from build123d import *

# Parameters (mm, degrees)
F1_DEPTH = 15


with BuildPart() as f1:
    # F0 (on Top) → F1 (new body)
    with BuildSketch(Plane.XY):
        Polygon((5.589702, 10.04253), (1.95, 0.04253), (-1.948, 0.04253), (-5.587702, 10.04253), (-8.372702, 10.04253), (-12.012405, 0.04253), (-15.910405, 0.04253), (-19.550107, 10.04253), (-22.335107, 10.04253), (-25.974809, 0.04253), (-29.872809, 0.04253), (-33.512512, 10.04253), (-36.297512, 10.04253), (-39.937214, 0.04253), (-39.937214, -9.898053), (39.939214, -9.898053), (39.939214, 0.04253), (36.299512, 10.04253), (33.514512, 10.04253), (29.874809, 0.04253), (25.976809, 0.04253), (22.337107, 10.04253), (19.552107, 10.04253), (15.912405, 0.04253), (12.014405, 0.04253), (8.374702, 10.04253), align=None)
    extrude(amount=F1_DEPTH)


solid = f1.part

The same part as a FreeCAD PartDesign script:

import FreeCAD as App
import Part
import Sketcher

V = App.Vector
Q = App.Units.Quantity


def add_polygon(sketch, points):
    """Adds a closed chain of lines whose ends are joined by coincident constraints."""
    first, n = sketch.GeometryCount, len(points)
    for a, b in zip(points, points[1:] + points[:1]):
        sketch.addGeometry(Part.LineSegment(App.Vector(*a, 0), App.Vector(*b, 0)), False)
    for i in range(n):
        sketch.addConstraint(Sketcher.Constraint("Coincident", first + i, 2, first + (i + 1) % n, 1))

doc = App.newDocument("Part")
body = doc.addObject("PartDesign::Body", "Body")

sketch1 = body.newObject("Sketcher::SketchObject", "Sketch")
sketch1.AttachmentSupport = (doc.getObject("XY_Plane"), [""])
sketch1.MapMode = "FlatFace"
add_polygon(sketch1, [(5.6, 10), (1.9, 0), (-1.9, 0), (-5.6, 10), (-8.4, 10), (-12, 0), (-15.9, 0), (-19.6, 10), (-22.3, 10), (-26, 0), (-29.9, 0), (-33.5, 10), (-36.3, 10), (-39.9, 0), (-39.9, -9.9), (39.9, -9.9), (39.9, 0), (36.3, 10), (33.5, 10), (29.9, 0), (26, 0), (22.3, 10), (19.6, 10), (15.9, 0), (12, 0), (8.4, 10)])
sketch1.addConstraint([
    Sketcher.Constraint("Horizontal", 1),
    Sketcher.Constraint("Horizontal", 3),
    Sketcher.Constraint("Horizontal", 5),
    Sketcher.Constraint("Horizontal", 7),
    Sketcher.Constraint("Horizontal", 9),
    Sketcher.Constraint("Horizontal", 11),
    Sketcher.Constraint("Vertical", 13),
    Sketcher.Constraint("Horizontal", 14),
    Sketcher.Constraint("Vertical", 15),
    Sketcher.Constraint("Horizontal", 17),
    Sketcher.Constraint("Horizontal", 19),
    Sketcher.Constraint("Horizontal", 21),
    Sketcher.Constraint("Horizontal", 23),
    Sketcher.Constraint("Horizontal", 25),
    Sketcher.Constraint("Parallel", 0, 4),
    Sketcher.Constraint("Parallel", 2, 6),
    Sketcher.Constraint("Parallel", 4, 8),
    Sketcher.Constraint("Parallel", 6, 10),
    Sketcher.Constraint("Parallel", 8, 12),
    Sketcher.Constraint("Parallel", 10, 16),
    Sketcher.Constraint("Parallel", 12, 18),
    Sketcher.Constraint("Parallel", 16, 20),
    Sketcher.Constraint("Parallel", 18, 22),
    Sketcher.Constraint("Parallel", 20, 24),
    Sketcher.Constraint("Horizontal", 1, 2, 4, 2),
    Sketcher.Constraint("Horizontal", 3, 2, 6, 2),
    Sketcher.Constraint("Horizontal", 5, 2, 8, 2),
    Sketcher.Constraint("Horizontal", 7, 2, 10, 2),
    Sketcher.Constraint("Horizontal", 9, 2, 12, 2),
    Sketcher.Constraint("Horizontal", 12, 2, 15, 2),
    Sketcher.Constraint("Horizontal", 11, 2, 16, 2),
    Sketcher.Constraint("Horizontal", 15, 2, 18, 2),
    Sketcher.Constraint("Horizontal", 17, 2, 20, 2),
    Sketcher.Constraint("Horizontal", 19, 2, 22, 2),
    Sketcher.Constraint("Horizontal", 21, 2, 24, 2),
    Sketcher.Constraint("Equal", 1, 5),
    Sketcher.Constraint("Equal", 3, 7),
    Sketcher.Constraint("Equal", 5, 9),
    Sketcher.Constraint("Equal", 7, 11),
    Sketcher.Constraint("Equal", 11, 17),
    Sketcher.Constraint("Equal", 9, 19),
    Sketcher.Constraint("Equal", 17, 21),
    Sketcher.Constraint("Equal", 19, 23),
    Sketcher.Constraint("Equal", 21, 25),
    Sketcher.Constraint("Equal", 0, 2),
    Sketcher.Constraint("Angle", 0, Q("-109.999998 deg")),
    Sketcher.Constraint("DistanceY", 1, 2, 2, 2, Q("10 mm")),
    Sketcher.Constraint("DistanceX", 1, 2, 1, 1, Q("3.898 mm")),
    Sketcher.Constraint("DistanceX", 3, 2, 3, 1, Q("2.785 mm")),
    Sketcher.Constraint("DistanceX", -1, 1, 0, 2, Q("1.95 mm")),
    Sketcher.Constraint("DistanceY", 13, 2, 13, 1, Q("9.940583 mm")),
    Sketcher.Constraint("DistanceY", -1, 1, 0, 2, Q("0.04253 mm")),
])
pad1 = body.newObject("PartDesign::Pad", "Pad")
pad1.Profile = sketch1
pad1.Length = 15

doc.recompute()
